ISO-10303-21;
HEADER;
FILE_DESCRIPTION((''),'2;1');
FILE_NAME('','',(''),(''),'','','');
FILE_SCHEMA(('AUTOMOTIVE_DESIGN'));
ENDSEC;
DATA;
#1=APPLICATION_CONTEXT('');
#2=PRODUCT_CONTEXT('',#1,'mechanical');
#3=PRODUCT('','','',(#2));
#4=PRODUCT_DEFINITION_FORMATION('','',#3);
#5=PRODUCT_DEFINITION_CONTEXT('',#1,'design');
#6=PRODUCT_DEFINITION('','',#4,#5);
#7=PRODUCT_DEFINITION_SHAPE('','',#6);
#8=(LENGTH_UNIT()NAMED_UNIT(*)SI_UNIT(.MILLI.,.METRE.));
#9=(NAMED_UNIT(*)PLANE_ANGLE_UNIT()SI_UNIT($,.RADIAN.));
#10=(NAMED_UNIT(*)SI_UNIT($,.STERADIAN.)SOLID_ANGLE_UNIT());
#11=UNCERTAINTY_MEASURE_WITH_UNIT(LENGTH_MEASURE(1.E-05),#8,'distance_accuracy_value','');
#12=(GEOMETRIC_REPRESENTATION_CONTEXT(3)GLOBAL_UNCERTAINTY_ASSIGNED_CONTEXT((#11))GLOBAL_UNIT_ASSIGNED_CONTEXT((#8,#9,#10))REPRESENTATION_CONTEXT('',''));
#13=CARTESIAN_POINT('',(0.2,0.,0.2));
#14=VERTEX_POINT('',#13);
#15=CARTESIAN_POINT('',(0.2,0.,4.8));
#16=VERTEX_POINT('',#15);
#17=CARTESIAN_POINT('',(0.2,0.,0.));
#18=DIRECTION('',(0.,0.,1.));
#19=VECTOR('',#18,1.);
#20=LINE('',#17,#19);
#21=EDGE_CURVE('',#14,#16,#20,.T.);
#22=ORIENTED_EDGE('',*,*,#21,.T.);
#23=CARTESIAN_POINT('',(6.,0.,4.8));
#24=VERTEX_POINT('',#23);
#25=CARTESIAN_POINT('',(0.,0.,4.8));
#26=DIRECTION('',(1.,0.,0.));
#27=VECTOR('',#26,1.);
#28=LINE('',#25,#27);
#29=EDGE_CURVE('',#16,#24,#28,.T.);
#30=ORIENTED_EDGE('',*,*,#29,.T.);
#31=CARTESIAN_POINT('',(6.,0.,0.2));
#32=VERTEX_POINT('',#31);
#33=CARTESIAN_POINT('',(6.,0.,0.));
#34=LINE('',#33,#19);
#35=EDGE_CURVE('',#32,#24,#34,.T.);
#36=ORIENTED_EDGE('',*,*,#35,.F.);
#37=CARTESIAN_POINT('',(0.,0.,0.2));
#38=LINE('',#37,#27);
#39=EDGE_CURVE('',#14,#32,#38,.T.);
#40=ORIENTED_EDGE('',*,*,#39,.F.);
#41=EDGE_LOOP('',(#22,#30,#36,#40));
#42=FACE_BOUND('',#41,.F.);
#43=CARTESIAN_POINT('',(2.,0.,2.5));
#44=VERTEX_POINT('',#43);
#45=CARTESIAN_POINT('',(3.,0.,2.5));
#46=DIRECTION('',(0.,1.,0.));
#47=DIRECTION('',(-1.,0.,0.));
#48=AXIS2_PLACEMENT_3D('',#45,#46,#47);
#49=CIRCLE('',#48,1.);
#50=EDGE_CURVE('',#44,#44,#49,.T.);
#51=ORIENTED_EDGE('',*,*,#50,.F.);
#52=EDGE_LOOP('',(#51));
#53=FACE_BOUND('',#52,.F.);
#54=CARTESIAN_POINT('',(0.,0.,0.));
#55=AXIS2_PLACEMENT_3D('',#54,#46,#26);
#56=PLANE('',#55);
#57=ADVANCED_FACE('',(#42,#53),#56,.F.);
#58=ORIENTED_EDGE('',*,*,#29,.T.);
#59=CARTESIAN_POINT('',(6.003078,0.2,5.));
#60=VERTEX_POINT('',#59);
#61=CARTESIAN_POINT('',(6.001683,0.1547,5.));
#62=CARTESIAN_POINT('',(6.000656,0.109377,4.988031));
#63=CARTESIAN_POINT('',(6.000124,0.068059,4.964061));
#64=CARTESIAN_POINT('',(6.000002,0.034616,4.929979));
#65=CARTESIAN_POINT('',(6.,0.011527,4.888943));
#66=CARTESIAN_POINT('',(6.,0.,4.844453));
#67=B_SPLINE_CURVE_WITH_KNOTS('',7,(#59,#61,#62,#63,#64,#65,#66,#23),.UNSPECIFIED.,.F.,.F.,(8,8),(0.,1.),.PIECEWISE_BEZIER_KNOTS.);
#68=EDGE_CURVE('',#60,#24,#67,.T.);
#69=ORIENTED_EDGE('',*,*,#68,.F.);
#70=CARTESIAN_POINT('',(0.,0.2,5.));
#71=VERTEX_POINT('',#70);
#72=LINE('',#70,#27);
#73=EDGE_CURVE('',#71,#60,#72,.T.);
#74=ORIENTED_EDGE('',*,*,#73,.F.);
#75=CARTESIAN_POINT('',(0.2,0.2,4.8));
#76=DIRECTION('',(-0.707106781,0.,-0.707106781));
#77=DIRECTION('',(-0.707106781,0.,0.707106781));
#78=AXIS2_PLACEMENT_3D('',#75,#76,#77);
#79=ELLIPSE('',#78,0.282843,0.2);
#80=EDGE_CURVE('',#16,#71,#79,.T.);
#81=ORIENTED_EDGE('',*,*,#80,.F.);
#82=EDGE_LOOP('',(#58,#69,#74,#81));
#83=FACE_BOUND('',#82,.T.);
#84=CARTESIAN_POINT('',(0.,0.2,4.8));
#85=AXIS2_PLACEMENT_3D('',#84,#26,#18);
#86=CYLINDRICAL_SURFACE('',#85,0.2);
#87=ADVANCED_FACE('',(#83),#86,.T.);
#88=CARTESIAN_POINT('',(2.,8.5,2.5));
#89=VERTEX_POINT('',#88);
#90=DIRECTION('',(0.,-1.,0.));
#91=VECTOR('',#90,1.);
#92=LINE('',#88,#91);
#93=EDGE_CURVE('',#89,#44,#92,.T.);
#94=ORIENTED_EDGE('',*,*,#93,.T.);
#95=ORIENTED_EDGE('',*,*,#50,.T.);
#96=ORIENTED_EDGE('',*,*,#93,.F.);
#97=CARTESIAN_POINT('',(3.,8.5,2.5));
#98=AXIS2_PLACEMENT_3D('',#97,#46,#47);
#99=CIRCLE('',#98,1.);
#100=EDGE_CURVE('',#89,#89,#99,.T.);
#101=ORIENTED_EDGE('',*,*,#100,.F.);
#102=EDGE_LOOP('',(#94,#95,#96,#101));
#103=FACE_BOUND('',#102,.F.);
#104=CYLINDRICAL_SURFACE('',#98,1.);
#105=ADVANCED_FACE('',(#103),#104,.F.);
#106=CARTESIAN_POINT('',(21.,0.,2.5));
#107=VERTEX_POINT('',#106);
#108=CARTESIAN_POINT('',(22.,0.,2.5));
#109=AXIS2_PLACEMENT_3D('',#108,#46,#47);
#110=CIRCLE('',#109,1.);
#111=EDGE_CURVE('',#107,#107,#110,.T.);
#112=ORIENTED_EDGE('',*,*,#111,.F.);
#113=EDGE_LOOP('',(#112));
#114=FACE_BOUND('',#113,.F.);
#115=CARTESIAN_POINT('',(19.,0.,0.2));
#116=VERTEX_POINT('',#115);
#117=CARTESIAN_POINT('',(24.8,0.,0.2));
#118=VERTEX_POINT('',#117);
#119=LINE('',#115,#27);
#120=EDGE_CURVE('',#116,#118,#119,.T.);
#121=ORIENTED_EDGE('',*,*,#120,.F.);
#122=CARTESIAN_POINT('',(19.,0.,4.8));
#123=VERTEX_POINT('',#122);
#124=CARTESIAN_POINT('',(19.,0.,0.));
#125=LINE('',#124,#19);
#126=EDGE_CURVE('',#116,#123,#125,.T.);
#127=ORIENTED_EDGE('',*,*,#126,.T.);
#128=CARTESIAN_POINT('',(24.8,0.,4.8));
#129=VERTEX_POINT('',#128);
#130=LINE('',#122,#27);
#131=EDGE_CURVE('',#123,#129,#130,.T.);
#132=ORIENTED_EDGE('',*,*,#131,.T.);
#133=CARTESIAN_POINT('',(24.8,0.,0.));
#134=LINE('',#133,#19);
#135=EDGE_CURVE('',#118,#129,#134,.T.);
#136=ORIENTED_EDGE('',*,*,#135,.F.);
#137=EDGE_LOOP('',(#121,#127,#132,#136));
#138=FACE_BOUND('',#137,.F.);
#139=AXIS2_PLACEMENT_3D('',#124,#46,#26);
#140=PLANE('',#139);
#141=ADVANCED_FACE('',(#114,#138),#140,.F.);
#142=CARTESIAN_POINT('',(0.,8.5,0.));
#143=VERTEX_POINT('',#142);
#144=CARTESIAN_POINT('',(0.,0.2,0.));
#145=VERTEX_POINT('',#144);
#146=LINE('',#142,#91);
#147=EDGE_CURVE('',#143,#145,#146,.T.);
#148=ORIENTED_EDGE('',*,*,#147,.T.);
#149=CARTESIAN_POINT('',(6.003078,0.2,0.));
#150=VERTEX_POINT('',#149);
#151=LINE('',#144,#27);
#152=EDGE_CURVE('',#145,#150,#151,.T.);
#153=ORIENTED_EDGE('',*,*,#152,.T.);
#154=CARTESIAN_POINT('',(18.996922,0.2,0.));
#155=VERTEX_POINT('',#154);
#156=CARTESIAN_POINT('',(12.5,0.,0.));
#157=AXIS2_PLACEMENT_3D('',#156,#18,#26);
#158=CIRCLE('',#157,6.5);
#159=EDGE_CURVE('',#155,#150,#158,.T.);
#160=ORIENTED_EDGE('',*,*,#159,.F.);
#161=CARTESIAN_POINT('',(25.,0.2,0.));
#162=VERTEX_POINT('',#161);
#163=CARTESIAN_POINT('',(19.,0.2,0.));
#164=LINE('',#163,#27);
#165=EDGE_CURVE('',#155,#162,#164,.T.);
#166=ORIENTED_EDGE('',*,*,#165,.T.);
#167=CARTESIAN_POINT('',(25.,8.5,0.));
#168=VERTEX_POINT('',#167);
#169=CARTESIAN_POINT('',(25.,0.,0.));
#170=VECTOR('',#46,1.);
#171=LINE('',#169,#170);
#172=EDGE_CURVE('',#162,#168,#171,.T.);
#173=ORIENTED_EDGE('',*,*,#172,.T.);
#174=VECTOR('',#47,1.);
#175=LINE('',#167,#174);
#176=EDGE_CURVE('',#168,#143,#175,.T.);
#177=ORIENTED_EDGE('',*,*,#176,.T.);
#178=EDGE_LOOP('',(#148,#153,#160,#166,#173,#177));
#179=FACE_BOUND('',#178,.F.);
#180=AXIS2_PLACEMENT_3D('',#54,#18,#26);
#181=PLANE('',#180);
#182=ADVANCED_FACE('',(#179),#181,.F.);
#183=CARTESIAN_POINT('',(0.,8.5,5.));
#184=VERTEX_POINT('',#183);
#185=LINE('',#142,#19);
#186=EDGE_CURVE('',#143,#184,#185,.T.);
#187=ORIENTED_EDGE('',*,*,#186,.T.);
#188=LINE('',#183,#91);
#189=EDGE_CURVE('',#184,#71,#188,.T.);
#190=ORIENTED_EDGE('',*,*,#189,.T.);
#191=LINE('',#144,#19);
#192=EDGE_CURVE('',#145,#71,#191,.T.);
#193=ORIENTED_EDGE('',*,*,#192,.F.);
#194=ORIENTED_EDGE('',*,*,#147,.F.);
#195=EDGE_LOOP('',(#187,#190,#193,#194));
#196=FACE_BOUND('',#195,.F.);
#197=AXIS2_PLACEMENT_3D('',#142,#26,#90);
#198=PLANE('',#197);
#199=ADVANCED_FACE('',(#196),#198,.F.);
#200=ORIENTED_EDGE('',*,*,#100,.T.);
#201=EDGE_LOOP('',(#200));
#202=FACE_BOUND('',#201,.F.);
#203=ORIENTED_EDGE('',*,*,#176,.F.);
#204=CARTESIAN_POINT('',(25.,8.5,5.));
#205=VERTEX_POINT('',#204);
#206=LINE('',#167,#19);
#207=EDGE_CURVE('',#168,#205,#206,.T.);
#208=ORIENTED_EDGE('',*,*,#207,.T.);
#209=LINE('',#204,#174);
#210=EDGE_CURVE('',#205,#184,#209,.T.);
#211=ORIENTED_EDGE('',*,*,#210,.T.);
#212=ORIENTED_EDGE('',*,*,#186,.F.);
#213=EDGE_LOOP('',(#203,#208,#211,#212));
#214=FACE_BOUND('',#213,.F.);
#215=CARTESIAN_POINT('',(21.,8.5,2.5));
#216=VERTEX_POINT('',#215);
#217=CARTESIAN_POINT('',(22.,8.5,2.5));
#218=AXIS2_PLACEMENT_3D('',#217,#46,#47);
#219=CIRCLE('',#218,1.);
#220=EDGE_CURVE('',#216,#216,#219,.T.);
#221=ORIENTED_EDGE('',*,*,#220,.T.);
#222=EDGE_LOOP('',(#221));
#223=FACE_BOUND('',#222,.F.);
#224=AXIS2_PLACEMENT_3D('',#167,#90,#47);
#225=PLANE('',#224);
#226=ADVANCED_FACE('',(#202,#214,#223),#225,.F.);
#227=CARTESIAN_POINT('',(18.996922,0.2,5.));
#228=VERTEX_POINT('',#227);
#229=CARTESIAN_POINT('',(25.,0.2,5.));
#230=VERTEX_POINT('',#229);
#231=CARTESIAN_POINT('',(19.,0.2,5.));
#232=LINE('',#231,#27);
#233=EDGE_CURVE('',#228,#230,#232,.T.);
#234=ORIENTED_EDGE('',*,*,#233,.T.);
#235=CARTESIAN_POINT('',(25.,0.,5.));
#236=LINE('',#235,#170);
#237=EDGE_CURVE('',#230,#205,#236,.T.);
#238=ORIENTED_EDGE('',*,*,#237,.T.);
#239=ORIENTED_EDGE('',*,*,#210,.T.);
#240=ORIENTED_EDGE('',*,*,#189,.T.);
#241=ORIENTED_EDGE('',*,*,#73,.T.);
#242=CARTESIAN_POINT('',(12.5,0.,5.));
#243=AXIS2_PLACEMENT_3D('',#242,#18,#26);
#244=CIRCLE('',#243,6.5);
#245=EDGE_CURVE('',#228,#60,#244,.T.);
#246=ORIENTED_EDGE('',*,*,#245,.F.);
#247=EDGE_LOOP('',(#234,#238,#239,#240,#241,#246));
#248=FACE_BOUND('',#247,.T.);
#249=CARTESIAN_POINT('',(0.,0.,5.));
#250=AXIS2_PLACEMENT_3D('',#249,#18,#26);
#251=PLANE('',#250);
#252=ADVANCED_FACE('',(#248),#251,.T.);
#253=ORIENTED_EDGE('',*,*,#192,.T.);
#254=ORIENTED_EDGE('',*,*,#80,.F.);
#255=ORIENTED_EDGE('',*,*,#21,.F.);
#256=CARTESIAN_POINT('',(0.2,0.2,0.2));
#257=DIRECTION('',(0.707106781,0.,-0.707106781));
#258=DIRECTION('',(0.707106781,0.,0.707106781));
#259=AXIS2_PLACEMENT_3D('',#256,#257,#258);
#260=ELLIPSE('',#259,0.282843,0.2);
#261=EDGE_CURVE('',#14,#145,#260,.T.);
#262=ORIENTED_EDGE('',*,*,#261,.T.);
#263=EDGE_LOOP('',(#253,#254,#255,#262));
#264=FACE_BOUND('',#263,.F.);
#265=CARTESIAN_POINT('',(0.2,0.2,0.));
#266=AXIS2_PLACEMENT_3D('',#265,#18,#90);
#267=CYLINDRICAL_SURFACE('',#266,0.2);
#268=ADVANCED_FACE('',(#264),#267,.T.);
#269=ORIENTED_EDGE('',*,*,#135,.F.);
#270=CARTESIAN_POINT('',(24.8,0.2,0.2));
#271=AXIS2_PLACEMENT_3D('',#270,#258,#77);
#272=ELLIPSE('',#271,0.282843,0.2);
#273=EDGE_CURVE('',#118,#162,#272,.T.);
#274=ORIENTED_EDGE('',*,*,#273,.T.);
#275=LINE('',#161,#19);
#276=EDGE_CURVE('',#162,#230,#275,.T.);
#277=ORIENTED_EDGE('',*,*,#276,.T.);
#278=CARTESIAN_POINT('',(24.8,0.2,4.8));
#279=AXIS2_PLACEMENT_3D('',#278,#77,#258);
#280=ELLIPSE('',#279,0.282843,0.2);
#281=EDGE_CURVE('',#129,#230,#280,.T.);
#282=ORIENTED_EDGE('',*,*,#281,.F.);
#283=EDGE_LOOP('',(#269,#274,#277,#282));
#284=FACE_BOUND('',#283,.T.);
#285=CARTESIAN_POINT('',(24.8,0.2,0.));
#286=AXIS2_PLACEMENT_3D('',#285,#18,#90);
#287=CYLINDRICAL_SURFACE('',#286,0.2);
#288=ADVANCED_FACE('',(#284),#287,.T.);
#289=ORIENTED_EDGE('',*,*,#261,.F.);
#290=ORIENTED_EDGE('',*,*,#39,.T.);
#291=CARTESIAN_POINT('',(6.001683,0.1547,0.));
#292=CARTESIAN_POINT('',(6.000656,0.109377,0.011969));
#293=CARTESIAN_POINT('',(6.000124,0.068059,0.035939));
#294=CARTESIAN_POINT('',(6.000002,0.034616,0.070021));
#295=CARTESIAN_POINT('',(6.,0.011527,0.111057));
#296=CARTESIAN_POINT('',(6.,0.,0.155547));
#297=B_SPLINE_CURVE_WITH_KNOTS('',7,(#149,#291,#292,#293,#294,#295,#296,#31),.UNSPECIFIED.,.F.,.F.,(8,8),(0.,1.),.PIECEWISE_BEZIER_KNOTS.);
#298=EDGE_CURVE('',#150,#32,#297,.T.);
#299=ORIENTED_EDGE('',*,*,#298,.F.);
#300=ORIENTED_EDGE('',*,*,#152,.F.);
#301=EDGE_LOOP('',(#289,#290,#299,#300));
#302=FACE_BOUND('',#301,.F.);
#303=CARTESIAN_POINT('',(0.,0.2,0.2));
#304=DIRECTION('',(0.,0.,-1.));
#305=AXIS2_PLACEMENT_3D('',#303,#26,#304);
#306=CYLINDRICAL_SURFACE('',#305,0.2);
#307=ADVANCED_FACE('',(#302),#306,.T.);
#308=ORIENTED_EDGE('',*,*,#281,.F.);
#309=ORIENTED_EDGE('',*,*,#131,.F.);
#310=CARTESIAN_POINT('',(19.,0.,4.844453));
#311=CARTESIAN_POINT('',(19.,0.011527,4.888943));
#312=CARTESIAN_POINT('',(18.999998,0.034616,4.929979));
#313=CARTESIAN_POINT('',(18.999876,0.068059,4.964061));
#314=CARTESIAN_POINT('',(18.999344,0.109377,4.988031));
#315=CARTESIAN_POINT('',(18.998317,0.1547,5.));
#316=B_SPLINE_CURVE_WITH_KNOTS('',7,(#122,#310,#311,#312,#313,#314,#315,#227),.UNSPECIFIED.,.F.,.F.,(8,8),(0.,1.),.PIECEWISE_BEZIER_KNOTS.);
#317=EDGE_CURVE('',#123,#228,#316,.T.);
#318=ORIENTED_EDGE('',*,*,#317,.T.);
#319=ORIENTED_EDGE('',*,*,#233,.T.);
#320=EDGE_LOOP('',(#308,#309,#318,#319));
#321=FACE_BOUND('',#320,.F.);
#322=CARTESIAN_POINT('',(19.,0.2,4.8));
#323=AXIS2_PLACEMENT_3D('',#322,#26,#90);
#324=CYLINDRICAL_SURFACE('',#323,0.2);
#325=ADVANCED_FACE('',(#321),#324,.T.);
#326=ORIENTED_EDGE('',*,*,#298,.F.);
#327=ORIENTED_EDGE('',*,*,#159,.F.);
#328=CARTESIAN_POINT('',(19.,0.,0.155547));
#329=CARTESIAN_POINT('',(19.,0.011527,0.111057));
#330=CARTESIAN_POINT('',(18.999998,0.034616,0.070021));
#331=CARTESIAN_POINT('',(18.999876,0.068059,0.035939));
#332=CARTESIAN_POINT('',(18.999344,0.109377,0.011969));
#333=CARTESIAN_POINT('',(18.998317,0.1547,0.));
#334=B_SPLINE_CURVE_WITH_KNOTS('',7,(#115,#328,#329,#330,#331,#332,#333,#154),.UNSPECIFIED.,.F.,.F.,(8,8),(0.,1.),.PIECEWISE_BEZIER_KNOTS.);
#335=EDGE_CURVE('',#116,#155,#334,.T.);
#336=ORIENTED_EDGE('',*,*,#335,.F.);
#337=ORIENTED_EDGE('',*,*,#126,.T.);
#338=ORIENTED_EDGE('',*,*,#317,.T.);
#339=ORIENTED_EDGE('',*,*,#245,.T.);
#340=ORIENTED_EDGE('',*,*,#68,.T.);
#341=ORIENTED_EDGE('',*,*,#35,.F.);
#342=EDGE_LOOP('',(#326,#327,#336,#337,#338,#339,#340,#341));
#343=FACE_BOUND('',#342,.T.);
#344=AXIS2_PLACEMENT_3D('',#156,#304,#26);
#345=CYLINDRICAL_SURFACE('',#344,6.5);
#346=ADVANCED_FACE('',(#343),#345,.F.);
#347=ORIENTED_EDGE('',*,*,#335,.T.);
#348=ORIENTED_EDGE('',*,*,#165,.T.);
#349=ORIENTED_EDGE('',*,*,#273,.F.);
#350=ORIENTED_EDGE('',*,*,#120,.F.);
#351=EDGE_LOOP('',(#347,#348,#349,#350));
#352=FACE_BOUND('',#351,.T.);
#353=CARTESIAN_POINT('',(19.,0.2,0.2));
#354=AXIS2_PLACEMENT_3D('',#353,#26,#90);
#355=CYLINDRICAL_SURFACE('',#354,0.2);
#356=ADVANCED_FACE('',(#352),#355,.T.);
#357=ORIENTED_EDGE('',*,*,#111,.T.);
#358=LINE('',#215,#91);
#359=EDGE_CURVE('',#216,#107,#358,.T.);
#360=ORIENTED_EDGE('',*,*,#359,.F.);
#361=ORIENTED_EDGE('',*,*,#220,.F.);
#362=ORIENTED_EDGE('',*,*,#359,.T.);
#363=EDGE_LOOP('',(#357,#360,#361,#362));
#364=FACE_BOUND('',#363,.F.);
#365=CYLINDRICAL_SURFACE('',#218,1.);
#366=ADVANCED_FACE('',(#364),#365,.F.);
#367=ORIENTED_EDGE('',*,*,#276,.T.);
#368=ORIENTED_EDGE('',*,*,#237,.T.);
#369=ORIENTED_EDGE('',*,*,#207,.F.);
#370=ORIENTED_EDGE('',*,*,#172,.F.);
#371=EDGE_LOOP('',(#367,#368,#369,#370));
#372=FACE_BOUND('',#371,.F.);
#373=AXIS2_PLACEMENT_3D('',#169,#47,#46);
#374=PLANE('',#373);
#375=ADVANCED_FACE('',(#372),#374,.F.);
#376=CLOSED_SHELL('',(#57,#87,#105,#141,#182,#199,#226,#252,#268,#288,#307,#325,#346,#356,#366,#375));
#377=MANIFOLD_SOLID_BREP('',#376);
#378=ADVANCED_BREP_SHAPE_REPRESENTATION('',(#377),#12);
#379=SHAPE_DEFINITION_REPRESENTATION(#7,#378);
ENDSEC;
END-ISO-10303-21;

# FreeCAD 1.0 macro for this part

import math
import FreeCAD as App
import Part
import Sketcher

V = App.Vector


def edges_at(feature, points):
    """Names of the edges that pass closest to the given points."""
    edges = feature.Shape.Edges
    near = lambda p: min(range(len(edges)), key=lambda i: edges[i].distToShape(Part.Vertex(*p))[0])
    return sorted({f"Edge{near(p) + 1}" for p in points})

doc = App.newDocument("Part")
body = doc.addObject("PartDesign::Body", "Body")

# Sketch on XY plane
sketch1 = doc.addObject("Sketcher::SketchObject", "Sketch")
body.addObject(sketch1)
sketch1.AttachmentSupport = (doc.XY_Plane, [""])
sketch1.MapMode = "FlatFace"
sketch1.addGeometry([
    Part.LineSegment(V(19, 0, 0), V(25, 0, 0)),  # 0
    Part.LineSegment(V(25, 0, 0), V(25, 8, 0)),  # 1
    Part.LineSegment(V(25, 8, 0), V(0, 8, 0)),  # 2
    Part.LineSegment(V(0, 8, 0), V(0, 0, 0)),  # 3
    Part.LineSegment(V(0, 0, 0), V(6, 0, 0)),  # 4
    Part.ArcOfCircle(Part.Circle(V(12, 0, 0), V(0, 0, 1), 6), math.radians(0), math.radians(180)),  # 5
], False)
sketch1.addConstraint([
    Sketcher.Constraint("Coincident", 0, 2, 1, 1),
    Sketcher.Constraint("Coincident", 1, 2, 2, 1),
    Sketcher.Constraint("Coincident", 2, 2, 3, 1),
    Sketcher.Constraint("Coincident", 3, 2, 4, 1),
    Sketcher.Constraint("Coincident", 4, 2, 5, 2),
    Sketcher.Constraint("Coincident", 5, 1, 0, 1),
    Sketcher.Constraint("Horizontal", 0),
    Sketcher.Constraint("Vertical", 1),
    Sketcher.Constraint("Horizontal", 2),
    Sketcher.Constraint("Vertical", 3),
    Sketcher.Constraint("Horizontal", 4),
    Sketcher.Constraint("Coincident", 3, 2, -1, 1),
    Sketcher.Constraint("PointOnObject", 5, 3, -1),
    Sketcher.Constraint("PointOnObject", 0, 2, -1),
    Sketcher.Constraint("Equal", 0, 4),
    Sketcher.Constraint("Radius", 5, 6.5),
    Sketcher.Constraint("DistanceX", 2, 2, 2, 1, 25.0),
    Sketcher.Constraint("DistanceY", 1, 1, 1, 2, 8.5),
])
pad1 = doc.addObject("PartDesign::Pad", "Pad")
body.addObject(pad1)
pad1.Profile = sketch1
pad1.Length = 5

# Sketch on XZ plane
sketch2 = doc.addObject("Sketcher::SketchObject", "Sketch001")
body.addObject(sketch2)
sketch2.AttachmentSupport = (doc.XZ_Plane, [""])
sketch2.MapMode = "FlatFace"
sketch2.AttachmentOffset = App.Placement(V(0, 0, -8.5), App.Rotation())
sketch2.addGeometry([
    Part.Circle(V(3, 2.5, 0), V(0, 0, 1), 1),
    Part.Circle(V(22, 2.5, 0), V(0, 0, 1), 1),
], False)
sketch2.addConstraint([
    Sketcher.Constraint("Equal", 0, 1),
    Sketcher.Constraint("Horizontal", 0, 3, 1, 3),
    Sketcher.Constraint("Diameter", 0, 2.0),
    Sketcher.Constraint("DistanceX", -1, 1, 0, 3, 3.0),
    Sketcher.Constraint("DistanceX", -1, 1, 1, 3, 22.0),
    Sketcher.Constraint("DistanceY", -1, 1, 0, 3, 2.5),
])
pocket1 = doc.addObject("PartDesign::Pocket", "Pocket")
body.addObject(pocket1)
pocket1.Profile = sketch2
pocket1.Type = "ThroughAll"
pocket1.Reversed = True
doc.recompute()

fillet = doc.addObject("PartDesign::Fillet", "Fillet")
body.addObject(fillet)
fillet.Base = (pocket1, edges_at(pocket1, [
    (0, 0, 2.5),
    (3, 0, 0),
    (3, 0, 5),
    (22, 0, 5),
    (25, 0, 2.5),
    (22, 0, 0),
]))
fillet.Radius = 0.2

doc.recompute()
